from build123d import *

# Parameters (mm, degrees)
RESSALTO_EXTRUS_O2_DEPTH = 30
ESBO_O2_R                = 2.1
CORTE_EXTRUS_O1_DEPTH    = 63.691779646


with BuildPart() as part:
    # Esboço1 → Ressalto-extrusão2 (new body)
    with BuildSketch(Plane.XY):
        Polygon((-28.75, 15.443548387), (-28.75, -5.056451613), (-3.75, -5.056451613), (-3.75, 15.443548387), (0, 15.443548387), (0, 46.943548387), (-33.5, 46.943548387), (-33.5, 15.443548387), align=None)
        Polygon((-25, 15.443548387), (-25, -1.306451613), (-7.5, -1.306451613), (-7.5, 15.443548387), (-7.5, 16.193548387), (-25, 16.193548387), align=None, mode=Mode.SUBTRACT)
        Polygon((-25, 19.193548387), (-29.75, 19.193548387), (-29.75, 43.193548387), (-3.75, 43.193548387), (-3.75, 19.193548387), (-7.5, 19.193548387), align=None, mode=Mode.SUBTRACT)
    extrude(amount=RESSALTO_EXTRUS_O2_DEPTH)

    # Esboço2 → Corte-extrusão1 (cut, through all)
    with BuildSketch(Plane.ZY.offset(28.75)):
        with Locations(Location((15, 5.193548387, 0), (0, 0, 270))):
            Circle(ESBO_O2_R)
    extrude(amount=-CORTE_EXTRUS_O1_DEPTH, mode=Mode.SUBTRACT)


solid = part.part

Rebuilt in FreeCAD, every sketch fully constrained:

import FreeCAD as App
import Part
import Sketcher
from FreeCAD import Vector

doc = App.newDocument("Part")
body = doc.addObject("PartDesign::Body", "Body")

sketch1 = body.newObject("Sketcher::SketchObject", "Sketch")
sketch1.AttachmentSupport = (doc.getObject("XY_Plane"), [""])
sketch1.MapMode = "FlatFace"
sketch1.addGeometry([
    Part.LineSegment(Vector(-28.8, 15.4, 0), Vector(-28.8, -5.1, 0)),
    Part.LineSegment(Vector(-28.8, -5.1, 0), Vector(-3.8, -5.1, 0)),
    Part.LineSegment(Vector(-3.8, -5.1, 0), Vector(-3.8, 15.4, 0)),
    Part.LineSegment(Vector(-3.8, 15.4, 0), Vector(0, 15.4, 0)),
    Part.LineSegment(Vector(0, 15.4, 0), Vector(0, 46.9, 0)),
    Part.LineSegment(Vector(0, 46.9, 0), Vector(-33.5, 46.9, 0)),
    Part.LineSegment(Vector(-33.5, 46.9, 0), Vector(-33.5, 15.4, 0)),
    Part.LineSegment(Vector(-33.5, 15.4, 0), Vector(-28.8, 15.4, 0)),
    Part.LineSegment(Vector(-25, -1.3, 0), Vector(-25, 16.2, 0)),
    Part.LineSegment(Vector(-25, 16.2, 0), Vector(-7.5, 16.2, 0)),
    Part.LineSegment(Vector(-7.5, 16.2, 0), Vector(-7.5, -1.3, 0)),
    Part.LineSegment(Vector(-7.5, -1.3, 0), Vector(-25, -1.3, 0)),
    Part.LineSegment(Vector(-3.8, 19.2, 0), Vector(-29.8, 19.2, 0)),
    Part.LineSegment(Vector(-29.8, 19.2, 0), Vector(-29.8, 43.2, 0)),
    Part.LineSegment(Vector(-29.8, 43.2, 0), Vector(-3.8, 43.2, 0)),
    Part.LineSegment(Vector(-3.8, 43.2, 0), Vector(-3.8, 19.2, 0)),
], False)
sketch1.addConstraint([
    Sketcher.Constraint("Coincident", 0, 2, 1, 1),
    Sketcher.Constraint("Coincident", 1, 2, 2, 1),
    Sketcher.Constraint("Coincident", 2, 2, 3, 1),
    Sketcher.Constraint("Coincident", 3, 2, 4, 1),
    Sketcher.Constraint("Coincident", 4, 2, 5, 1),
    Sketcher.Constraint("Coincident", 5, 2, 6, 1),
    Sketcher.Constraint("Coincident", 6, 2, 7, 1),
    Sketcher.Constraint("Coincident", 7, 2, 0, 1),
    Sketcher.Constraint("Coincident", 8, 2, 9, 1),
    Sketcher.Constraint("Coincident", 9, 2, 10, 1),
    Sketcher.Constraint("Coincident", 10, 2, 11, 1),
    Sketcher.Constraint("Coincident", 11, 2, 8, 1),
    Sketcher.Constraint("Coincident", 12, 2, 13, 1),
    Sketcher.Constraint("Coincident", 13, 2, 14, 1),
    Sketcher.Constraint("Coincident", 14, 2, 15, 1),
    Sketcher.Constraint("Coincident", 15, 2, 12, 1),
    Sketcher.Constraint("Vertical", 0),
    Sketcher.Constraint("Horizontal", 1),
    Sketcher.Constraint("Vertical", 2),
    Sketcher.Constraint("Horizontal", 3),
    Sketcher.Constraint("Vertical", 4),
    Sketcher.Constraint("Horizontal", 5),
    Sketcher.Constraint("Vertical", 6),
    Sketcher.Constraint("Horizontal", 7),
    Sketcher.Constraint("Vertical", 8),
    Sketcher.Constraint("Horizontal", 9),
    Sketcher.Constraint("Vertical", 10),
    Sketcher.Constraint("Horizontal", 11),
    Sketcher.Constraint("Horizontal", 12),
    Sketcher.Constraint("Vertical", 13),
    Sketcher.Constraint("Horizontal", 14),
    Sketcher.Constraint("Vertical", 15),
    Sketcher.Constraint("PointOnObject", 3, 2, -2),
    Sketcher.Constraint("Horizontal", 3, 2, 6, 2),
    Sketcher.Constraint("Vertical", 2, 2, 14, 2),
    Sketcher.Constraint("Equal", 11, 8),
    Sketcher.Constraint("DistanceX", 1, 1, 1, 2, 25.0),
    Sketcher.Constraint("DistanceX", 12, 2, 12, 1, 26.0),
    Sketcher.Constraint("DistanceY", 13, 1, 13, 2, 24.0),
    Sketcher.Constraint("DistanceX", 5, 2, 5, 1, 33.5),
    Sketcher.Constraint("DistanceX", 9, 1, 9, 2, 17.5),
    Sketcher.Constraint("DistanceY", 0, 2, 0, 1, 20.5),
    Sketcher.Constraint("DistanceY", 4, 1, 4, 2, 31.5),
    Sketcher.Constraint("DistanceX", 8, 2, -1, 1, 25.0),
    Sketcher.Constraint("DistanceY", 8, 2, 12, 2, 3.0),
    Sketcher.Constraint("DistanceX", 3, 1, 3, 2, 3.75),
    Sketcher.Constraint("DistanceY", 7, 2, 8, 2, 0.75),
    Sketcher.Constraint("DistanceY", 0, 2, -1, 1, 5.056452),
])
pad1 = body.newObject("PartDesign::Pad", "Pad")
pad1.Profile = sketch1
pad1.Length = 30

sketch2 = body.newObject("Sketcher::SketchObject", "Sketch001")
sketch2.AttachmentSupport = (doc.getObject("YZ_Plane"), [""])
sketch2.MapMode = "FlatFace"
sketch2.AttachmentOffset = App.Placement(Vector(0, 0, -28.75), App.Rotation())
sketch2.addGeometry(Part.Circle(Vector(5.2, 15, 0), Vector(0, 0, 1), 2.1), False)
sketch2.addConstraint([
    Sketcher.Constraint("Diameter", 0, 4.2),
    Sketcher.Constraint("DistanceY", -1, 1, 0, 3, 15.0),
    Sketcher.Constraint("DistanceX", -1, 1, 0, 3, 5.193548),
])
pocket1 = body.newObject("PartDesign::Pocket", "Pocket")
pocket1.Profile = sketch2
pocket1.Type = "ThroughAll"
pocket1.Reversed = True

doc.recompute()
